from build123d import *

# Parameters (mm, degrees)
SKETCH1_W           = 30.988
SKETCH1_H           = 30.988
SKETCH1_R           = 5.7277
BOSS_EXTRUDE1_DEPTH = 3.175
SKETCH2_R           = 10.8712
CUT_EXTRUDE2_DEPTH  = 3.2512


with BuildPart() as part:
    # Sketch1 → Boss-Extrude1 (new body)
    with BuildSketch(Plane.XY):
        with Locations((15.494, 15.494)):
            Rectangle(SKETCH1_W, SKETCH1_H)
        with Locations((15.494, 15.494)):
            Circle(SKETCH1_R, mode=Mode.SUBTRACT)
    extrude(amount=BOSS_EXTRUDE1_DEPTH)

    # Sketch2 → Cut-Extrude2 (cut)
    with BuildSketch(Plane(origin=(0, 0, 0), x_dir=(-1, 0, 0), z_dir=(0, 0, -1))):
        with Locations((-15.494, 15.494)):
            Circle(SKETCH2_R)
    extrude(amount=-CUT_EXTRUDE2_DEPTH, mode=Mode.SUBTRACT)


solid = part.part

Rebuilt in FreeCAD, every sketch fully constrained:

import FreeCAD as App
import Part
import Sketcher
Q = App.Units.Quantity

doc = App.newDocument("Part")
body = doc.addObject("PartDesign::Body", "Body")

# Sketch on XY plane
sketch1 = doc.addObject("Sketcher::SketchObject", "Sketch")
body.addObject(sketch1)
sketch1.AttachmentSupport = (doc.XY_Plane, [""])
sketch1.MapMode = "FlatFace"
sketch1.addGeometry([
    Part.LineSegment(App.Vector(0, 31, 0), App.Vector(0, 0, 0)),  # 0
    Part.LineSegment(App.Vector(0, 0, 0), App.Vector(31, 0, 0)),  # 1
    Part.LineSegment(App.Vector(31, 0, 0), App.Vector(31, 31, 0)),  # 2
    Part.LineSegment(App.Vector(31, 31, 0), App.Vector(0, 31, 0)),  # 3
    Part.Circle(App.Vector(15, 15, 0), App.Vector(0, 0, 1), 6),  # 4
], False)
sketch1.addConstraint([
    Sketcher.Constraint("Coincident", 0, 2, 1, 1),
    Sketcher.Constraint("Coincident", 1, 2, 2, 1),
    Sketcher.Constraint("Coincident", 2, 2, 3, 1),
    Sketcher.Constraint("Coincident", 3, 2, 0, 1),
    Sketcher.Constraint("Vertical", 0),
    Sketcher.Constraint("Horizontal", 1),
    Sketcher.Constraint("Vertical", 2),
    Sketcher.Constraint("Horizontal", 3),
    Sketcher.Constraint("Coincident", 0, 2, -1, 1),
    Sketcher.Constraint("Equal", 3, 0),
    Sketcher.Constraint("Diameter", 4, Q("0.451 in")),
    Sketcher.Constraint("DistanceX", 1, 1, 1, 2, Q("1.22 in")),
    Sketcher.Constraint("DistanceX", -1, 1, 4, 3, Q("0.61 in")),
    Sketcher.Constraint("DistanceY", -1, 1, 4, 3, Q("0.61 in")),
])
pad1 = doc.addObject("PartDesign::Pad", "Pad")
body.addObject(pad1)
pad1.Profile = sketch1
pad1.Length = Q("0.125 in")

# Sketch on XY plane
sketch2 = doc.addObject("Sketcher::SketchObject", "Sketch001")
body.addObject(sketch2)
sketch2.AttachmentSupport = (doc.XY_Plane, [""])
sketch2.MapMode = "FlatFace"
sketch2.addGeometry(Part.Circle(App.Vector(15, 15, 0), App.Vector(0, 0, 1), 11), False)
sketch2.addConstraint([
    Sketcher.Constraint("Diameter", 0, Q("0.856 in")),
    Sketcher.Constraint("DistanceX", -1, 1, 0, 3, Q("0.61 in")),
    Sketcher.Constraint("DistanceY", -1, 1, 0, 3, Q("0.61 in")),
])
pocket1 = doc.addObject("PartDesign::Pocket", "Pocket")
body.addObject(pocket1)
pocket1.Profile = sketch2
pocket1.Length = Q("0.128 in")
pocket1.Reversed = True

doc.recompute()
